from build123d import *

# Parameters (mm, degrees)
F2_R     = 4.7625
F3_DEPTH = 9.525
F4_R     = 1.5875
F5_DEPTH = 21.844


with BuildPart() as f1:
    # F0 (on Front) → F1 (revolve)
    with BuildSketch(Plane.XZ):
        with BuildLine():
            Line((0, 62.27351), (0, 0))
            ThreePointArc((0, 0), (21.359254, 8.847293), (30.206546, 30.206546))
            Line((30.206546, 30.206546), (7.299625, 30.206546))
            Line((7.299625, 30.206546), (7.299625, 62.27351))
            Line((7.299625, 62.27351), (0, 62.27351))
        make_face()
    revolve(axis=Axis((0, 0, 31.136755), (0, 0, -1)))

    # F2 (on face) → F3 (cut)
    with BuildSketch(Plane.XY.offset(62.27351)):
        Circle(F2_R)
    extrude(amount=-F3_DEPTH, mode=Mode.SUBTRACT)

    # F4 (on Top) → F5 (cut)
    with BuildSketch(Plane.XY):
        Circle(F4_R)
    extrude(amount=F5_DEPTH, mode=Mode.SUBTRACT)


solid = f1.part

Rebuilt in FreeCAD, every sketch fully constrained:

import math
import FreeCAD as App
import Part
import Sketcher
from FreeCAD import Vector
Q = App.Units.Quantity

doc = App.newDocument("Part")
body = doc.addObject("PartDesign::Body", "Body")

# Sketch on XZ plane
sketch1 = doc.addObject("Sketcher::SketchObject", "Sketch")
body.addObject(sketch1)
sketch1.AttachmentSupport = (doc.XZ_Plane, [""])
sketch1.MapMode = "FlatFace"
sketch1.addGeometry(Part.LineSegment(Vector(0, 62, 0), Vector(0, 0, 0)), False)
sketch1.addGeometry(Part.ArcOfCircle(Part.Circle(Vector(0, 30, 0), Vector(0, 0, 1), 30), math.radians(-90), math.radians(0)), False)
sketch1.addGeometry(Part.LineSegment(Vector(30, 30, 0), Vector(7, 30, 0)), False)
sketch1.addGeometry(Part.LineSegment(Vector(7, 30, 0), Vector(7, 62, 0)), False)
sketch1.addGeometry(Part.LineSegment(Vector(7, 62, 0), Vector(0, 62, 0)), False)
sketch1.addConstraint(Sketcher.Constraint("Coincident", 0, 2, 1, 1))
sketch1.addConstraint(Sketcher.Constraint("Coincident", 1, 2, 2, 1))
sketch1.addConstraint(Sketcher.Constraint("Coincident", 2, 2, 3, 1))
sketch1.addConstraint(Sketcher.Constraint("Coincident", 3, 2, 4, 1))
sketch1.addConstraint(Sketcher.Constraint("Coincident", 4, 2, 0, 1))
sketch1.addConstraint(Sketcher.Constraint("Vertical", 0))
sketch1.addConstraint(Sketcher.Constraint("Horizontal", 2))
sketch1.addConstraint(Sketcher.Constraint("Vertical", 3))
sketch1.addConstraint(Sketcher.Constraint("Horizontal", 4))
sketch1.addConstraint(Sketcher.Constraint("Coincident", 0, 2, -1, 1))
sketch1.addConstraint(Sketcher.Constraint("PointOnObject", 1, 3, -2))
sketch1.addConstraint(Sketcher.Constraint("Radius", 1, Q("30.206546 mm")))
sketch1.addConstraint(Sketcher.Constraint("DistanceX", 2, 2, 2, 1, Q("22.906921 mm")))
sketch1.addConstraint(Sketcher.Constraint("DistanceY", 0, 2, 0, 1, Q("62.27351 mm")))
sketch1.addConstraint(Sketcher.Constraint("DistanceY", 3, 1, 3, 2, Q("32.066964 mm")))
revolution = doc.addObject("PartDesign::Revolution", "Revolution")
body.addObject(revolution)
revolution.Profile = sketch1
revolution.ReferenceAxis = (sketch1, ["V_Axis"])
revolution.Angle = 360

# Sketch on XY plane
sketch2 = doc.addObject("Sketcher::SketchObject", "Sketch001")
body.addObject(sketch2)
sketch2.AttachmentSupport = (doc.XY_Plane, [""])
sketch2.MapMode = "FlatFace"
sketch2.AttachmentOffset = App.Placement(Vector(0, 0, 62.27351), App.Rotation())
sketch2.addGeometry(Part.Circle(Vector(0, 0, 0), Vector(0, 0, 1), 4.8), False)
sketch2.addConstraint(Sketcher.Constraint("Coincident", 0, 3, -1, 1))
sketch2.addConstraint(Sketcher.Constraint("Diameter", 0, Q("0.375 in")))
pocket1 = doc.addObject("PartDesign::Pocket", "Pocket")
body.addObject(pocket1)
pocket1.Profile = sketch2
pocket1.Length = Q("0.375 in")

# Sketch on XY plane
sketch3 = doc.addObject("Sketcher::SketchObject", "Sketch002")
body.addObject(sketch3)
sketch3.AttachmentSupport = (doc.XY_Plane, [""])
sketch3.MapMode = "FlatFace"
sketch3.addGeometry(Part.Circle(Vector(0, 0, 0), Vector(0, 0, 1), 1.6), False)
sketch3.addConstraint(Sketcher.Constraint("Coincident", 0, 3, -1, 1))
sketch3.addConstraint(Sketcher.Constraint("Diameter", 0, Q("0.125 in")))
pocket2 = doc.addObject("PartDesign::Pocket", "Pocket001")
body.addObject(pocket2)
pocket2.Profile = sketch3
pocket2.Length = Q("0.86 in")
pocket2.Reversed = True

doc.recompute()
